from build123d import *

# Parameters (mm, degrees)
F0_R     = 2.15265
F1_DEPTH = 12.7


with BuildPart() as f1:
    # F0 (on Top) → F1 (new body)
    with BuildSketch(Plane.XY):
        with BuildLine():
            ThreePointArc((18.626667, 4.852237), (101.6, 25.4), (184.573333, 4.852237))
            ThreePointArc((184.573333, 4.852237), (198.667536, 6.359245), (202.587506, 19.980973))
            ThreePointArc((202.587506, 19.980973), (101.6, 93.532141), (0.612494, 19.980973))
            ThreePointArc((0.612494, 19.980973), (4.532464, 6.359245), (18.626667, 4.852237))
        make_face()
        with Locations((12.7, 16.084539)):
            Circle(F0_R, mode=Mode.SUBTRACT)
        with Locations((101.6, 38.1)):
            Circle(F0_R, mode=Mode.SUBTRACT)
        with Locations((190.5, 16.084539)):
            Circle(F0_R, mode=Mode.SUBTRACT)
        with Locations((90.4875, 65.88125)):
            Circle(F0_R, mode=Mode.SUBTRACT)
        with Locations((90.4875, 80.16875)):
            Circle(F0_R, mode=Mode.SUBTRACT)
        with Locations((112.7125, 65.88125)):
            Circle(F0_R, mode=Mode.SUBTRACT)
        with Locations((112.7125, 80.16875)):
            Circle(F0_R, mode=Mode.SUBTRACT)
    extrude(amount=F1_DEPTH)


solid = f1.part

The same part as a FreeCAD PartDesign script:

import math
import FreeCAD as App
import Part
import Sketcher
from FreeCAD import Vector
Q = App.Units.Quantity

doc = App.newDocument("Part")
body = doc.addObject("PartDesign::Body", "Body")

# Sketch on XY plane
sketch1 = body.newObject("Sketcher::SketchObject", "Sketch")
sketch1.AttachmentSupport = (doc.getObject("XY_Plane"), [""])
sketch1.MapMode = "FlatFace"
sketch1.addGeometry(Part.ArcOfCircle(Part.Circle(Vector(101.6, -152.4, 0), Vector(0, 0, 1), 177.8), math.radians(62), math.radians(118)), False)
sketch1.addGeometry(Part.ArcOfCircle(Part.Circle(Vector(190.5, 16.1, 0), Vector(0, 0, 1), 12.7), math.radians(-118), math.radians(18)), False)
sketch1.addGeometry(Part.ArcOfCircle(Part.Circle(Vector(101.6, -12.6, 0), Vector(0, 0, 1), 106.1), math.radians(18), math.radians(162)), False)
sketch1.addGeometry(Part.ArcOfCircle(Part.Circle(Vector(12.7, 16.1, 0), Vector(0, 0, 1), 12.7), math.radians(162), math.radians(298)), False)
sketch1.addGeometry(Part.Circle(Vector(12.7, 16.1, 0), Vector(0, 0, 1), 2.2), False)
sketch1.addGeometry(Part.Circle(Vector(101.6, 38.1, 0), Vector(0, 0, 1), 2.2), False)
sketch1.addGeometry(Part.Circle(Vector(190.5, 16.1, 0), Vector(0, 0, 1), 2.2), False)
sketch1.addGeometry(Part.Circle(Vector(90.5, 65.9, 0), Vector(0, 0, 1), 2.2), False)
sketch1.addGeometry(Part.Circle(Vector(90.5, 80.2, 0), Vector(0, 0, 1), 2.2), False)
sketch1.addGeometry(Part.Circle(Vector(112.7, 65.9, 0), Vector(0, 0, 1), 2.2), False)
sketch1.addGeometry(Part.Circle(Vector(112.7, 80.2, 0), Vector(0, 0, 1), 2.2), False)
sketch1.addConstraint(Sketcher.Constraint("Tangent", 0, 1, 1, 1))
sketch1.addConstraint(Sketcher.Constraint("Tangent", 1, 2, 2, 1))
sketch1.addConstraint(Sketcher.Constraint("Tangent", 2, 2, 3, 1))
sketch1.addConstraint(Sketcher.Constraint("Tangent", 3, 2, 0, 2))
sketch1.addConstraint(Sketcher.Constraint("Coincident", 4, 3, 3, 3))
sketch1.addConstraint(Sketcher.Constraint("Coincident", 6, 3, 1, 3))
sketch1.addConstraint(Sketcher.Constraint("Equal", 1, 3))
sketch1.addConstraint(Sketcher.Constraint("Equal", 4, 5))
sketch1.addConstraint(Sketcher.Constraint("Equal", 5, 6))
sketch1.addConstraint(Sketcher.Constraint("Equal", 6, 7))
sketch1.addConstraint(Sketcher.Constraint("Equal", 7, 8))
sketch1.addConstraint(Sketcher.Constraint("Equal", 8, 9))
sketch1.addConstraint(Sketcher.Constraint("Equal", 9, 10))
sketch1.addConstraint(Sketcher.Constraint("Horizontal", 1, 3, 3, 3))
sketch1.addConstraint(Sketcher.Constraint("Horizontal", 7, 3, 9, 3))
sketch1.addConstraint(Sketcher.Constraint("Horizontal", 8, 3, 10, 3))
sketch1.addConstraint(Sketcher.Constraint("Vertical", 2, 3, 5, 3))
sketch1.addConstraint(Sketcher.Constraint("Vertical", 7, 3, 8, 3))
sketch1.addConstraint(Sketcher.Constraint("Vertical", 9, 3, 10, 3))
sketch1.addConstraint(Sketcher.Constraint("Radius", 0, Q("7 in")))
sketch1.addConstraint(Sketcher.Constraint("Radius", 1, Q("0.5 in")))
sketch1.addConstraint(Sketcher.Constraint("DistanceX", -1, 1, 0, 3, Q("4 in")))
sketch1.addConstraint(Sketcher.Constraint("DistanceY", 0, 3, -1, 1, Q("6 in")))
sketch1.addConstraint(Sketcher.Constraint("DistanceX", 3, 3, 1, 3, Q("7 in")))
sketch1.addConstraint(Sketcher.Constraint("Diameter", 4, Q("0.1695 in")))
sketch1.addConstraint(Sketcher.Constraint("DistanceY", -1, 1, 5, 3, Q("1.5 in")))
sketch1.addConstraint(Sketcher.Constraint("DistanceX", -1, 1, 7, 3, Q("3.5625 in")))
sketch1.addConstraint(Sketcher.Constraint("DistanceY", -1, 1, 7, 3, Q("2.59375 in")))
sketch1.addConstraint(Sketcher.Constraint("DistanceY", -1, 1, 8, 3, Q("3.15625 in")))
sketch1.addConstraint(Sketcher.Constraint("DistanceX", -1, 1, 9, 3, Q("4.4375 in")))
sketch1.addConstraint(Sketcher.Constraint("Radius", 2, Q("106.10471 mm")))
pad1 = body.newObject("PartDesign::Pad", "Pad")
pad1.Profile = sketch1
pad1.Length = Q("0.5 in")

doc.recompute()
